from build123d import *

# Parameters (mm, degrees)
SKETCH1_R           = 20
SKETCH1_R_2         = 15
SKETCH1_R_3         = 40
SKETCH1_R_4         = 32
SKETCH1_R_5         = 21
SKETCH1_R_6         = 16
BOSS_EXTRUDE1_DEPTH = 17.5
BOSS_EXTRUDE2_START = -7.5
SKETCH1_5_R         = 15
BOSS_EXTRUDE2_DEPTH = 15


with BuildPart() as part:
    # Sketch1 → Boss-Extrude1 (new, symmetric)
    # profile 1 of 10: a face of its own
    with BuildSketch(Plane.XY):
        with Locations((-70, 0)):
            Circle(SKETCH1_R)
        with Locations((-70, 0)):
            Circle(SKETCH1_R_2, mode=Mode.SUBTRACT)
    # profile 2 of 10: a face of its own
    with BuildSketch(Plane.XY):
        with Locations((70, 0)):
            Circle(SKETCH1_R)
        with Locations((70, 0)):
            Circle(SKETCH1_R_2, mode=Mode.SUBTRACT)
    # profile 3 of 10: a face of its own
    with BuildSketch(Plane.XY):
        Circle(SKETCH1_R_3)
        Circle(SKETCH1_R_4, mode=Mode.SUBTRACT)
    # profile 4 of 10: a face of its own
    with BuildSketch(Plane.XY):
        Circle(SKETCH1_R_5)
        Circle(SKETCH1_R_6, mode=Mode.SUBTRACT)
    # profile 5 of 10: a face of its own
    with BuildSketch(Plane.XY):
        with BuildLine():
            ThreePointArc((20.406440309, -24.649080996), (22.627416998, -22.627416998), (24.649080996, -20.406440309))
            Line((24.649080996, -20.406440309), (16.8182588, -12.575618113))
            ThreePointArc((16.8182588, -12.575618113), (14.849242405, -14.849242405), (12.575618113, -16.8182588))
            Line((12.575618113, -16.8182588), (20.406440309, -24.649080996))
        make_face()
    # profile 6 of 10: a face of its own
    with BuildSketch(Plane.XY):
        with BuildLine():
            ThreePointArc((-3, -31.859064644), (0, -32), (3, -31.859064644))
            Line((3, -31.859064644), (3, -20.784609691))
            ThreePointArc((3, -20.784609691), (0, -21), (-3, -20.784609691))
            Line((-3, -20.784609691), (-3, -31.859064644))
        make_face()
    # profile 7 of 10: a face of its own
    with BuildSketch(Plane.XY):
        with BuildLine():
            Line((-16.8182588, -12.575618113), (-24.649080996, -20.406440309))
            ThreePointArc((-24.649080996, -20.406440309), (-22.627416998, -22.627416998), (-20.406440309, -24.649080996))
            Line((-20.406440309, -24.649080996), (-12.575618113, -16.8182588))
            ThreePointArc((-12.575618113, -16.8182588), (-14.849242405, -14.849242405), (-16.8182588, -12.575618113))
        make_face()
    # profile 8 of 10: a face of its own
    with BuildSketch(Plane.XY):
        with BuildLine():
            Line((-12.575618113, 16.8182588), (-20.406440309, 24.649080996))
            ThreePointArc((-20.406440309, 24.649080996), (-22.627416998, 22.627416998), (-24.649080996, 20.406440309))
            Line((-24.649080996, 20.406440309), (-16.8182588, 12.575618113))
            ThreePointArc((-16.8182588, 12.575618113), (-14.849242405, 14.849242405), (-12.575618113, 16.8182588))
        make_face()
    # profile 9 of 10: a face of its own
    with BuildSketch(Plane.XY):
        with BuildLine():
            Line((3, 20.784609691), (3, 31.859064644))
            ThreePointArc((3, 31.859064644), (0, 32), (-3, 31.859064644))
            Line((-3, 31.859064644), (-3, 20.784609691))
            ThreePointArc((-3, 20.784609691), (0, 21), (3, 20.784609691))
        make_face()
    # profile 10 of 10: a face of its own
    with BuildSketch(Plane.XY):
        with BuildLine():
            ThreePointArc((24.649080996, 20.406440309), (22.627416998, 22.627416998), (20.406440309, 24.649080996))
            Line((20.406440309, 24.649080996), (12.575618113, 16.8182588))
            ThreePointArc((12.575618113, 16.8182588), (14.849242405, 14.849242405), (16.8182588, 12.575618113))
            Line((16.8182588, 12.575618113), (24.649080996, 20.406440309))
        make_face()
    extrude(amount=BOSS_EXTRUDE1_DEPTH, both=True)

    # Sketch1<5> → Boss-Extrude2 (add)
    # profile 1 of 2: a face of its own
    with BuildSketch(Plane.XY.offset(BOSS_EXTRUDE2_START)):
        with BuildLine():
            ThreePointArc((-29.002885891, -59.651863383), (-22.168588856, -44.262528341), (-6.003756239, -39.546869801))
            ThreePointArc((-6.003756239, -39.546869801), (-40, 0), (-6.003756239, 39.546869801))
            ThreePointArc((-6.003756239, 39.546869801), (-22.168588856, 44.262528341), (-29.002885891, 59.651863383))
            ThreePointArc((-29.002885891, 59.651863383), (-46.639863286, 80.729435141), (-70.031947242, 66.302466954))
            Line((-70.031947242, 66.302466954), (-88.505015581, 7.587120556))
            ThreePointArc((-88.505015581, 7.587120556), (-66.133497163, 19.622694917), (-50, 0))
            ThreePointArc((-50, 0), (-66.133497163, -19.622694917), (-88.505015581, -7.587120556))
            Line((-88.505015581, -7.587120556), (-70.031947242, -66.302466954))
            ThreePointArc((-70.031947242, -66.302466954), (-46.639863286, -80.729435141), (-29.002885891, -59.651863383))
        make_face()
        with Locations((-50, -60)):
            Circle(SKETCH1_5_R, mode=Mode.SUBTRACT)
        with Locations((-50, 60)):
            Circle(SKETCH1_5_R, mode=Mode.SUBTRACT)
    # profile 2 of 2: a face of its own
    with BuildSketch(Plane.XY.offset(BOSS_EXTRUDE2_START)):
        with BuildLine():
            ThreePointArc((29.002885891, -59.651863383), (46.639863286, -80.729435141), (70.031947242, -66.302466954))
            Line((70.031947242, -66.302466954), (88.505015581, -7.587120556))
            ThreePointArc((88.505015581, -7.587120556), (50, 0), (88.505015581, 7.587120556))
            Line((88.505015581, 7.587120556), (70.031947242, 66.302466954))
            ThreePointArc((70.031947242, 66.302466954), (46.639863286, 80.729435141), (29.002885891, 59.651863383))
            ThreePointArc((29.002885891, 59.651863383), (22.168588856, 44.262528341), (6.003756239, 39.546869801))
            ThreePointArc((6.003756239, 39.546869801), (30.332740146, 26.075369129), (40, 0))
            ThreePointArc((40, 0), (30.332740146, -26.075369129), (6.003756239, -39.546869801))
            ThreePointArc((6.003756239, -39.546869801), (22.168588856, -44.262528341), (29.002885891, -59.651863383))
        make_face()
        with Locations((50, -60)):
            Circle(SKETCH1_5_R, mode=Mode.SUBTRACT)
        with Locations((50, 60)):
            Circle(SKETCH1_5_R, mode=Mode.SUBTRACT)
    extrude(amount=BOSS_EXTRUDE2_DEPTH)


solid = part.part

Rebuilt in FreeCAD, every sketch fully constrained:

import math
import FreeCAD as App
import Part
import Sketcher

V = App.Vector

doc = App.newDocument("Part")
params = doc.addObject("Spreadsheet::Sheet", "Params")
for row, (alias, value) in enumerate([
    ("sketch1_diameter", "40 mm"),
    ("sketch1_diameter2", "30 mm"),
    ("sketch1_diameter3", "80 mm"),
    ("sketch1_diameter4", "32 mm"),
    ("sketch1_radius", "32 mm"),
    ("pad1_length", "35 mm"),
    ("sketch2_diameter", "30 mm"),
    ("sketch2_radius", "20 mm"),
    ("sketch2_radius2", "40 mm"),
    ("sketch2_radius3", "21 mm"),
    ("pad2_length", "15 mm"),
], start=1):
    params.set(f"A{row}", alias)
    params.set(f"B{row}", "=" + value)
    params.setAlias(f"B{row}", alias)

body = doc.addObject("PartDesign::Body", "Body")
body.AllowCompound = True

sketch1 = body.newObject("Sketcher::SketchObject", "Sketch")
sketch1.AttachmentSupport = (doc.getObject("XY_Plane"), [""])
sketch1.MapMode = "FlatFace"
sketch1.addGeometry([
    Part.Circle(V(-70, 0, 0), V(0, 0, 1), 20),
    Part.Circle(V(-70, 0, 0), V(0, 0, 1), 15),
    Part.Circle(V(70, 0, 0), V(0, 0, 1), 20),
    Part.Circle(V(70, 0, 0), V(0, 0, 1), 15),
    Part.Circle(V(0, 0, 0), V(0, 0, 1), 40),
    Part.ArcOfCircle(Part.Circle(V(0, 0, 0), V(0, 0, 1), 32), math.radians(-40), math.radians(40)),
    Part.LineSegment(V(25, -20, 0), V(17, -13, 0)),
    Part.ArcOfCircle(Part.Circle(V(0, 0, 0), V(0, 0, 1), 21), math.radians(-37), math.radians(37)),
    Part.LineSegment(V(17, 13, 0), V(25, 20, 0)),
    Part.ArcOfCircle(Part.Circle(V(0, 0, 0), V(0, 0, 1), 32), math.radians(50), math.radians(85)),
    Part.LineSegment(V(20, 25, 0), V(13, 17, 0)),
    Part.ArcOfCircle(Part.Circle(V(0, 0, 0), V(0, 0, 1), 21), math.radians(53), math.radians(82)),
    Part.LineSegment(V(3, 21, 0), V(3, 32, 0)),
    Part.ArcOfCircle(Part.Circle(V(0, 0, 0), V(0, 0, 1), 32), math.radians(95), math.radians(130)),
    Part.LineSegment(V(-3, 32, 0), V(-3, 21, 0)),
    Part.ArcOfCircle(Part.Circle(V(0, 0, 0), V(0, 0, 1), 21), math.radians(98), math.radians(127)),
    Part.LineSegment(V(-13, 17, 0), V(-20, 25, 0)),
    Part.ArcOfCircle(Part.Circle(V(0, 0, 0), V(0, 0, 1), 32), math.radians(140), math.radians(220)),
    Part.LineSegment(V(-25, 20, 0), V(-17, 13, 0)),
    Part.ArcOfCircle(Part.Circle(V(0, 0, 0), V(0, 0, 1), 21), math.radians(143), math.radians(217)),
    Part.LineSegment(V(-17, -13, 0), V(-25, -20, 0)),
    Part.ArcOfCircle(Part.Circle(V(0, 0, 0), V(0, 0, 1), 32), math.radians(-130), math.radians(-95)),
    Part.LineSegment(V(-20, -25, 0), V(-13, -17, 0)),
    Part.ArcOfCircle(Part.Circle(V(0, 0, 0), V(0, 0, 1), 21), math.radians(-127), math.radians(-98)),
    Part.LineSegment(V(-3, -21, 0), V(-3, -32, 0)),
    Part.ArcOfCircle(Part.Circle(V(0, 0, 0), V(0, 0, 1), 32), math.radians(-85), math.radians(-50)),
    Part.LineSegment(V(3, -32, 0), V(3, -21, 0)),
    Part.ArcOfCircle(Part.Circle(V(0, 0, 0), V(0, 0, 1), 21), math.radians(-82), math.radians(-53)),
    Part.LineSegment(V(13, -17, 0), V(20, -25, 0)),
    Part.Circle(V(0, 0, 0), V(0, 0, 1), 16),
], False)
sketch1.addConstraint([
    Sketcher.Constraint("Coincident", 5, 1, 6, 1),
    Sketcher.Constraint("Coincident", 6, 2, 7, 1),
    Sketcher.Constraint("Coincident", 7, 2, 8, 1),
    Sketcher.Constraint("Coincident", 8, 2, 5, 2),
    Sketcher.Constraint("Coincident", 9, 1, 10, 1),
    Sketcher.Constraint("Coincident", 10, 2, 11, 1),
    Sketcher.Constraint("Coincident", 11, 2, 12, 1),
    Sketcher.Constraint("Coincident", 12, 2, 9, 2),
    Sketcher.Constraint("Coincident", 13, 1, 14, 1),
    Sketcher.Constraint("Coincident", 14, 2, 15, 1),
    Sketcher.Constraint("Coincident", 15, 2, 16, 1),
    Sketcher.Constraint("Coincident", 16, 2, 13, 2),
    Sketcher.Constraint("Coincident", 17, 1, 18, 1),
    Sketcher.Constraint("Coincident", 18, 2, 19, 1),
    Sketcher.Constraint("Coincident", 19, 2, 20, 1),
    Sketcher.Constraint("Coincident", 20, 2, 17, 2),
    Sketcher.Constraint("Coincident", 21, 1, 22, 1),
    Sketcher.Constraint("Coincident", 22, 2, 23, 1),
    Sketcher.Constraint("Coincident", 23, 2, 24, 1),
    Sketcher.Constraint("Coincident", 24, 2, 21, 2),
    Sketcher.Constraint("Coincident", 25, 1, 26, 1),
    Sketcher.Constraint("Coincident", 26, 2, 27, 1),
    Sketcher.Constraint("Coincident", 27, 2, 28, 1),
    Sketcher.Constraint("Coincident", 28, 2, 25, 2),
    Sketcher.Constraint("Vertical", 12),
    Sketcher.Constraint("Vertical", 14),
    Sketcher.Constraint("Vertical", 24),
    Sketcher.Constraint("Vertical", 26),
    Sketcher.Constraint("Coincident", 4, 3, -1, 1),
    Sketcher.Constraint("Coincident", 5, 3, -1, 1),
    Sketcher.Constraint("Coincident", 7, 3, -1, 1),
    Sketcher.Constraint("Coincident", 9, 3, -1, 1),
    Sketcher.Constraint("Coincident", 11, 3, -1, 1),
    Sketcher.Constraint("Coincident", 13, 3, -1, 1),
    Sketcher.Constraint("Coincident", 15, 3, -1, 1),
    Sketcher.Constraint("Coincident", 17, 3, -1, 1),
    Sketcher.Constraint("Coincident", 19, 3, -1, 1),
    Sketcher.Constraint("Coincident", 21, 3, -1, 1),
    Sketcher.Constraint("Coincident", 23, 3, -1, 1),
    Sketcher.Constraint("Coincident", 25, 3, -1, 1),
    Sketcher.Constraint("Coincident", 27, 3, -1, 1),
    Sketcher.Constraint("Coincident", 29, 3, -1, 1),
    Sketcher.Constraint("Coincident", 1, 3, 0, 3),
    Sketcher.Constraint("Coincident", 3, 3, 2, 3),
    Sketcher.Constraint("Equal", 0, 2),
    Sketcher.Constraint("Equal", 1, 3),
    Sketcher.Constraint("Equal", 5, 9),
    Sketcher.Constraint("Equal", 7, 11),
    Sketcher.Constraint("Equal", 9, 13),
    Sketcher.Constraint("Equal", 11, 15),
    Sketcher.Constraint("Equal", 13, 17),
    Sketcher.Constraint("Equal", 15, 19),
    Sketcher.Constraint("Equal", 17, 21),
    Sketcher.Constraint("Equal", 19, 23),
    Sketcher.Constraint("Equal", 21, 25),
    Sketcher.Constraint("Equal", 23, 27),
    Sketcher.Constraint("Symmetric", 0, 3, 2, 3, -1, 1),
    Sketcher.Constraint("PointOnObject", 0, 3, -1),
    Sketcher.Constraint("Perpendicular", 6, 8),
    Sketcher.Constraint("Parallel", 8, 10),
    Sketcher.Constraint("Perpendicular", 10, 16),
    Sketcher.Constraint("Parallel", 16, 18),
    Sketcher.Constraint("Perpendicular", 18, 20),
    Sketcher.Constraint("Parallel", 20, 22),
    Sketcher.Constraint("Perpendicular", 22, 28),
    Sketcher.Constraint("Horizontal", 12, 2, 13, 1),
    Sketcher.Constraint("Horizontal", 10, 2, 15, 2),
    Sketcher.Constraint("Horizontal", 9, 1, 16, 2),
    Sketcher.Constraint("Horizontal", 8, 2, 17, 1),
    Sketcher.Constraint("Horizontal", 6, 2, 19, 2),
    Sketcher.Constraint("Horizontal", 24, 2, 25, 1),
    Sketcher.Constraint("Horizontal", 22, 2, 27, 2),
    Sketcher.Constraint("Vertical", 6, 2, 7, 2),
    Sketcher.Constraint("Vertical", 16, 2, 21, 1),
    Sketcher.Constraint("Vertical", 14, 2, 23, 2),
    Sketcher.Constraint("Equal", 8, 10),
    Sketcher.Constraint("Diameter", 0, 40.0),
    Sketcher.Constraint("Diameter", 1, 30.0),
    Sketcher.Constraint("Diameter", 4, 80.0),
    Sketcher.Constraint("Diameter", 29, 32.0),
    Sketcher.Constraint("Radius", 5, 32.0),
    Sketcher.Constraint("Radius", 7, 21.0),
    Sketcher.Constraint("DistanceX", 0, 3, -1, 1, 70.0),
    Sketcher.Constraint("DistanceX", -1, 1, 11, 2, 3.0),
    Sketcher.Constraint("DistanceX", -1, 1, 5, 1, 24.649081),
])
sketch1.setExpression("Constraints[76]", "Params.sketch1_diameter")
sketch1.setExpression("Constraints[77]", "Params.sketch1_diameter2")
sketch1.setExpression("Constraints[78]", "Params.sketch1_diameter3")
sketch1.setExpression("Constraints[79]", "Params.sketch1_diameter4")
sketch1.setExpression("Constraints[80]", "Params.sketch1_radius")
pad1 = body.newObject("PartDesign::Pad", "Pad")
pad1.Profile = sketch1
pad1.setExpression("Length", "Params.pad1_length")
pad1.Midplane = True

sketch2 = body.newObject("Sketcher::SketchObject", "Sketch001")
sketch2.AttachmentSupport = (doc.getObject("XY_Plane"), [""])
sketch2.MapMode = "FlatFace"
sketch2.AttachmentOffset = App.Placement(V(0, 0, -7.5), App.Rotation())
sketch2.addGeometry([
    Part.ArcOfCircle(Part.Circle(V(-9, -59, 0), V(0, 0, 1), 20), math.radians(81), math.radians(181)),
    Part.ArcOfCircle(Part.Circle(V(0, 0, 0), V(0, 0, 1), 40), math.radians(99), math.radians(261)),
    Part.ArcOfCircle(Part.Circle(V(-9, 59, 0), V(0, 0, 1), 20), math.radians(179), math.radians(279)),
    Part.ArcOfCircle(Part.Circle(V(-50, 60, 0), V(0, 0, 1), 21), math.radians(-1), math.radians(163)),
    Part.LineSegment(V(-70, 66, 0), V(-89, 8, 0)),
    Part.ArcOfCircle(Part.Circle(V(-70, 0, 0), V(0, 0, 1), 20), math.radians(0), math.radians(158)),
    Part.ArcOfCircle(Part.Circle(V(-70, 0, 0), V(0, 0, 1), 20), math.radians(-158), math.radians(0)),
    Part.LineSegment(V(-89, -8, 0), V(-70, -66, 0)),
    Part.ArcOfCircle(Part.Circle(V(-50, -60, 0), V(0, 0, 1), 21), math.radians(-163), math.radians(1)),
    Part.Circle(V(-50, -60, 0), V(0, 0, 1), 15),
    Part.Circle(V(-50, 60, 0), V(0, 0, 1), 15),
    Part.ArcOfCircle(Part.Circle(V(50, -60, 0), V(0, 0, 1), 21), math.radians(179), math.radians(343)),
    Part.LineSegment(V(70, -66, 0), V(89, -8, 0)),
    Part.ArcOfCircle(Part.Circle(V(70, 0, 0), V(0, 0, 1), 20), math.radians(22), math.radians(338)),
    Part.LineSegment(V(89, 8, 0), V(70, 66, 0)),
    Part.ArcOfCircle(Part.Circle(V(50, 60, 0), V(0, 0, 1), 21), math.radians(17), math.radians(181)),
    Part.ArcOfCircle(Part.Circle(V(9, 59, 0), V(0, 0, 1), 20), math.radians(-99), math.radians(1)),
    Part.ArcOfCircle(Part.Circle(V(0, 0, 0), V(0, 0, 1), 40), math.radians(0), math.radians(81)),
    Part.ArcOfCircle(Part.Circle(V(0, 0, 0), V(0, 0, 1), 40), math.radians(-81), math.radians(0)),
    Part.ArcOfCircle(Part.Circle(V(9, -59, 0), V(0, 0, 1), 20), math.radians(-1), math.radians(99)),
    Part.Circle(V(50, -60, 0), V(0, 0, 1), 15),
    Part.Circle(V(50, 60, 0), V(0, 0, 1), 15),
], False)
sketch2.addConstraint([
    Sketcher.Constraint("Tangent", 0, 1, 1, 2),
    Sketcher.Constraint("Tangent", 1, 1, 2, 2),
    Sketcher.Constraint("Tangent", 2, 1, 3, 1),
    Sketcher.Constraint("Tangent", 3, 2, 4, 1),
    Sketcher.Constraint("Coincident", 4, 2, 5, 2),
    Sketcher.Constraint("Tangent", 5, 1, 6, 2),
    Sketcher.Constraint("Coincident", 6, 1, 7, 1),
    Sketcher.Constraint("Tangent", 7, 2, 8, 1),
    Sketcher.Constraint("Tangent", 8, 2, 0, 2),
    Sketcher.Constraint("Tangent", 11, 2, 12, 1),
    Sketcher.Constraint("Coincident", 12, 2, 13, 2),
    Sketcher.Constraint("Coincident", 13, 1, 14, 1),
    Sketcher.Constraint("Tangent", 14, 2, 15, 1),
    Sketcher.Constraint("Tangent", 15, 2, 16, 2),
    Sketcher.Constraint("Tangent", 16, 1, 17, 2),
    Sketcher.Constraint("Tangent", 17, 1, 18, 2),
    Sketcher.Constraint("Tangent", 18, 1, 19, 2),
    Sketcher.Constraint("Tangent", 19, 1, 11, 1),
    Sketcher.Constraint("Coincident", 1, 3, -1, 1),
    Sketcher.Constraint("Coincident", 17, 3, -1, 1),
    Sketcher.Constraint("Coincident", 9, 3, 8, 3),
    Sketcher.Constraint("Coincident", 10, 3, 3, 3),
    Sketcher.Constraint("Coincident", 20, 3, 11, 3),
    Sketcher.Constraint("Coincident", 21, 3, 15, 3),
    Sketcher.Constraint("Equal", 0, 2),
    Sketcher.Constraint("Equal", 2, 5),
    Sketcher.Constraint("Equal", 5, 6),
    Sketcher.Constraint("Equal", 3, 8),
    Sketcher.Constraint("Equal", 9, 10),
    Sketcher.Constraint("Equal", 8, 11),
    Sketcher.Constraint("Equal", 6, 13),
    Sketcher.Constraint("Equal", 11, 15),
    Sketcher.Constraint("Equal", 13, 16),
    Sketcher.Constraint("Equal", 1, 17),
    Sketcher.Constraint("Equal", 17, 18),
    Sketcher.Constraint("Equal", 16, 19),
    Sketcher.Constraint("Equal", 10, 20),
    Sketcher.Constraint("Equal", 20, 21),
    Sketcher.Constraint("Symmetric", 3, 3, 11, 3, -1, 1),
    Sketcher.Constraint("Symmetric", 5, 3, 13, 3, -1, 1),
    Sketcher.Constraint("Symmetric", 8, 3, 15, 3, -1, 1),
    Sketcher.Constraint("Symmetric", 8, 3, 11, 3, -2),
    Sketcher.Constraint("Symmetric", 6, 1, 12, 2, -2),
    Sketcher.Constraint("PointOnObject", 5, 1, -1),
    Sketcher.Constraint("PointOnObject", 17, 1, -1),
    Sketcher.Constraint("Parallel", 4, 12),
    Sketcher.Constraint("Parallel", 7, 14),
    Sketcher.Constraint("Vertical", 10, 3, 5, 1),
    Sketcher.Constraint("Diameter", 9, 30.0),
    Sketcher.Constraint("Radius", 0, 20.0),
    Sketcher.Constraint("Radius", 1, 40.0),
    Sketcher.Constraint("Radius", 3, 21.0),
    Sketcher.Constraint("DistanceX", 3, 3, -1, 1, 50.0),
    Sketcher.Constraint("DistanceY", -1, 1, 3, 3, 60.0),
    Sketcher.Constraint("Distance", 4, 61.552792),
])
sketch2.setExpression("Constraints[48]", "Params.sketch2_diameter")
sketch2.setExpression("Constraints[49]", "Params.sketch2_radius")
sketch2.setExpression("Constraints[50]", "Params.sketch2_radius2")
sketch2.setExpression("Constraints[51]", "Params.sketch2_radius3")
pad2 = body.newObject("PartDesign::Pad", "Pad001")
pad2.Profile = sketch2
pad2.setExpression("Length", "Params.pad2_length")

doc.recompute()
